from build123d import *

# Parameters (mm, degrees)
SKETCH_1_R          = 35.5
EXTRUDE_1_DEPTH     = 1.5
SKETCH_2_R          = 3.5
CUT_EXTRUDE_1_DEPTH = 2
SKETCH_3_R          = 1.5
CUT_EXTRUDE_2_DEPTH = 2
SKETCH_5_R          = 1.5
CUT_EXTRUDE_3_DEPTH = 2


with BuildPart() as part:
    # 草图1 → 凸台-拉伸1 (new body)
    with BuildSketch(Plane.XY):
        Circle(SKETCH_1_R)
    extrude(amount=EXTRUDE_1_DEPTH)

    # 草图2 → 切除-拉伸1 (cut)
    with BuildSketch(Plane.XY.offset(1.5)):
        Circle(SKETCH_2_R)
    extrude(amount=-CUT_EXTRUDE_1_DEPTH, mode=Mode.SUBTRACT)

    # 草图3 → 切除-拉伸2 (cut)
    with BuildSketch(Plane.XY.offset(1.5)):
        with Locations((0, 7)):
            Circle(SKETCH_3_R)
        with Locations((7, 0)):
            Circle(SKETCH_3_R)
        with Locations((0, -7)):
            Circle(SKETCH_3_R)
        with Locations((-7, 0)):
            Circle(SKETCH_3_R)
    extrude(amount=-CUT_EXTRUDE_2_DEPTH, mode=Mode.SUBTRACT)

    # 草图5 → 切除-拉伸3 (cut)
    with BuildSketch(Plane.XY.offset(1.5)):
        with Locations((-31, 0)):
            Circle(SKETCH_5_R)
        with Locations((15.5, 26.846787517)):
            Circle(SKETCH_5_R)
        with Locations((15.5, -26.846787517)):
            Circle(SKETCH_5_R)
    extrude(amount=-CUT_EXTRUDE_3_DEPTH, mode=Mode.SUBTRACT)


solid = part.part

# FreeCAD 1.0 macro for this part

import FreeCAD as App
import Part
import Sketcher

V = App.Vector

doc = App.newDocument("Part")
body = doc.addObject("PartDesign::Body", "Body")

sketch1 = body.newObject("Sketcher::SketchObject", "Sketch")
sketch1.AttachmentSupport = (doc.getObject("XY_Plane"), [""])
sketch1.MapMode = "FlatFace"
sketch1.addGeometry(Part.Circle(V(0, 0, 0), V(0, 0, 1), 36), False)
sketch1.addConstraint([
    Sketcher.Constraint("Coincident", 0, 3, -1, 1),
    Sketcher.Constraint("Diameter", 0, 71.0),
])
pad1 = body.newObject("PartDesign::Pad", "Pad")
pad1.Profile = sketch1
pad1.Length = 1.5

sketch2 = body.newObject("Sketcher::SketchObject", "Sketch001")
sketch2.AttachmentSupport = (doc.getObject("XY_Plane"), [""])
sketch2.MapMode = "FlatFace"
sketch2.AttachmentOffset = App.Placement(V(0, 0, 1.5), App.Rotation())
sketch2.addGeometry(Part.Circle(V(0, 0, 0), V(0, 0, 1), 3.5), False)
sketch2.addConstraint([
    Sketcher.Constraint("Coincident", 0, 3, -1, 1),
    Sketcher.Constraint("Diameter", 0, 7.0),
])
pocket1 = body.newObject("PartDesign::Pocket", "Pocket")
pocket1.Profile = sketch2
pocket1.Length = 2

sketch3 = body.newObject("Sketcher::SketchObject", "Sketch002")
sketch3.AttachmentSupport = (doc.getObject("XY_Plane"), [""])
sketch3.MapMode = "FlatFace"
sketch3.AttachmentOffset = App.Placement(V(0, 0, 1.5), App.Rotation())
sketch3.addGeometry([
    Part.Circle(V(0, 7, 0), V(0, 0, 1), 1.5),
    Part.Circle(V(7, 0, 0), V(0, 0, 1), 1.5),
    Part.Circle(V(0, -7, 0), V(0, 0, 1), 1.5),
    Part.Circle(V(-7, 0, 0), V(0, 0, 1), 1.5),
], False)
sketch3.addConstraint([
    Sketcher.Constraint("Equal", 0, 1),
    Sketcher.Constraint("Equal", 1, 2),
    Sketcher.Constraint("Equal", 2, 3),
    Sketcher.Constraint("Symmetric", 0, 3, 2, 3, -1, 1),
    Sketcher.Constraint("Symmetric", 1, 3, 3, 3, -1, 1),
    Sketcher.Constraint("PointOnObject", 0, 3, -2),
    Sketcher.Constraint("PointOnObject", 1, 3, -1),
    Sketcher.Constraint("Diameter", 0, 3.0),
    Sketcher.Constraint("DistanceY", -1, 1, 0, 3, 7.0),
    Sketcher.Constraint("DistanceX", -1, 1, 1, 3, 7.0),
])
pocket2 = body.newObject("PartDesign::Pocket", "Pocket001")
pocket2.Profile = sketch3
pocket2.Length = 2

sketch4 = body.newObject("Sketcher::SketchObject", "Sketch003")
sketch4.AttachmentSupport = (doc.getObject("XY_Plane"), [""])
sketch4.MapMode = "FlatFace"
sketch4.AttachmentOffset = App.Placement(V(0, 0, 1.5), App.Rotation())
sketch4.addGeometry([
    Part.Circle(V(-31, 0, 0), V(0, 0, 1), 1.5),
    Part.Circle(V(15.5, 26.8, 0), V(0, 0, 1), 1.5),
    Part.Circle(V(15.5, -26.8, 0), V(0, 0, 1), 1.5),
], False)
sketch4.addConstraint([
    Sketcher.Constraint("Equal", 0, 1),
    Sketcher.Constraint("Equal", 1, 2),
    Sketcher.Constraint("Symmetric", 1, 3, 2, 3, -1),
    Sketcher.Constraint("PointOnObject", 0, 3, -1),
    Sketcher.Constraint("Diameter", 0, 3.0),
    Sketcher.Constraint("DistanceX", 0, 3, -1, 1, 31.0),
    Sketcher.Constraint("DistanceX", -1, 1, 1, 3, 15.5),
    Sketcher.Constraint("DistanceY", -1, 1, 1, 3, 26.846788),
])
pocket3 = body.newObject("PartDesign::Pocket", "Pocket002")
pocket3.Profile = sketch4
pocket3.Length = 2

doc.recompute()
